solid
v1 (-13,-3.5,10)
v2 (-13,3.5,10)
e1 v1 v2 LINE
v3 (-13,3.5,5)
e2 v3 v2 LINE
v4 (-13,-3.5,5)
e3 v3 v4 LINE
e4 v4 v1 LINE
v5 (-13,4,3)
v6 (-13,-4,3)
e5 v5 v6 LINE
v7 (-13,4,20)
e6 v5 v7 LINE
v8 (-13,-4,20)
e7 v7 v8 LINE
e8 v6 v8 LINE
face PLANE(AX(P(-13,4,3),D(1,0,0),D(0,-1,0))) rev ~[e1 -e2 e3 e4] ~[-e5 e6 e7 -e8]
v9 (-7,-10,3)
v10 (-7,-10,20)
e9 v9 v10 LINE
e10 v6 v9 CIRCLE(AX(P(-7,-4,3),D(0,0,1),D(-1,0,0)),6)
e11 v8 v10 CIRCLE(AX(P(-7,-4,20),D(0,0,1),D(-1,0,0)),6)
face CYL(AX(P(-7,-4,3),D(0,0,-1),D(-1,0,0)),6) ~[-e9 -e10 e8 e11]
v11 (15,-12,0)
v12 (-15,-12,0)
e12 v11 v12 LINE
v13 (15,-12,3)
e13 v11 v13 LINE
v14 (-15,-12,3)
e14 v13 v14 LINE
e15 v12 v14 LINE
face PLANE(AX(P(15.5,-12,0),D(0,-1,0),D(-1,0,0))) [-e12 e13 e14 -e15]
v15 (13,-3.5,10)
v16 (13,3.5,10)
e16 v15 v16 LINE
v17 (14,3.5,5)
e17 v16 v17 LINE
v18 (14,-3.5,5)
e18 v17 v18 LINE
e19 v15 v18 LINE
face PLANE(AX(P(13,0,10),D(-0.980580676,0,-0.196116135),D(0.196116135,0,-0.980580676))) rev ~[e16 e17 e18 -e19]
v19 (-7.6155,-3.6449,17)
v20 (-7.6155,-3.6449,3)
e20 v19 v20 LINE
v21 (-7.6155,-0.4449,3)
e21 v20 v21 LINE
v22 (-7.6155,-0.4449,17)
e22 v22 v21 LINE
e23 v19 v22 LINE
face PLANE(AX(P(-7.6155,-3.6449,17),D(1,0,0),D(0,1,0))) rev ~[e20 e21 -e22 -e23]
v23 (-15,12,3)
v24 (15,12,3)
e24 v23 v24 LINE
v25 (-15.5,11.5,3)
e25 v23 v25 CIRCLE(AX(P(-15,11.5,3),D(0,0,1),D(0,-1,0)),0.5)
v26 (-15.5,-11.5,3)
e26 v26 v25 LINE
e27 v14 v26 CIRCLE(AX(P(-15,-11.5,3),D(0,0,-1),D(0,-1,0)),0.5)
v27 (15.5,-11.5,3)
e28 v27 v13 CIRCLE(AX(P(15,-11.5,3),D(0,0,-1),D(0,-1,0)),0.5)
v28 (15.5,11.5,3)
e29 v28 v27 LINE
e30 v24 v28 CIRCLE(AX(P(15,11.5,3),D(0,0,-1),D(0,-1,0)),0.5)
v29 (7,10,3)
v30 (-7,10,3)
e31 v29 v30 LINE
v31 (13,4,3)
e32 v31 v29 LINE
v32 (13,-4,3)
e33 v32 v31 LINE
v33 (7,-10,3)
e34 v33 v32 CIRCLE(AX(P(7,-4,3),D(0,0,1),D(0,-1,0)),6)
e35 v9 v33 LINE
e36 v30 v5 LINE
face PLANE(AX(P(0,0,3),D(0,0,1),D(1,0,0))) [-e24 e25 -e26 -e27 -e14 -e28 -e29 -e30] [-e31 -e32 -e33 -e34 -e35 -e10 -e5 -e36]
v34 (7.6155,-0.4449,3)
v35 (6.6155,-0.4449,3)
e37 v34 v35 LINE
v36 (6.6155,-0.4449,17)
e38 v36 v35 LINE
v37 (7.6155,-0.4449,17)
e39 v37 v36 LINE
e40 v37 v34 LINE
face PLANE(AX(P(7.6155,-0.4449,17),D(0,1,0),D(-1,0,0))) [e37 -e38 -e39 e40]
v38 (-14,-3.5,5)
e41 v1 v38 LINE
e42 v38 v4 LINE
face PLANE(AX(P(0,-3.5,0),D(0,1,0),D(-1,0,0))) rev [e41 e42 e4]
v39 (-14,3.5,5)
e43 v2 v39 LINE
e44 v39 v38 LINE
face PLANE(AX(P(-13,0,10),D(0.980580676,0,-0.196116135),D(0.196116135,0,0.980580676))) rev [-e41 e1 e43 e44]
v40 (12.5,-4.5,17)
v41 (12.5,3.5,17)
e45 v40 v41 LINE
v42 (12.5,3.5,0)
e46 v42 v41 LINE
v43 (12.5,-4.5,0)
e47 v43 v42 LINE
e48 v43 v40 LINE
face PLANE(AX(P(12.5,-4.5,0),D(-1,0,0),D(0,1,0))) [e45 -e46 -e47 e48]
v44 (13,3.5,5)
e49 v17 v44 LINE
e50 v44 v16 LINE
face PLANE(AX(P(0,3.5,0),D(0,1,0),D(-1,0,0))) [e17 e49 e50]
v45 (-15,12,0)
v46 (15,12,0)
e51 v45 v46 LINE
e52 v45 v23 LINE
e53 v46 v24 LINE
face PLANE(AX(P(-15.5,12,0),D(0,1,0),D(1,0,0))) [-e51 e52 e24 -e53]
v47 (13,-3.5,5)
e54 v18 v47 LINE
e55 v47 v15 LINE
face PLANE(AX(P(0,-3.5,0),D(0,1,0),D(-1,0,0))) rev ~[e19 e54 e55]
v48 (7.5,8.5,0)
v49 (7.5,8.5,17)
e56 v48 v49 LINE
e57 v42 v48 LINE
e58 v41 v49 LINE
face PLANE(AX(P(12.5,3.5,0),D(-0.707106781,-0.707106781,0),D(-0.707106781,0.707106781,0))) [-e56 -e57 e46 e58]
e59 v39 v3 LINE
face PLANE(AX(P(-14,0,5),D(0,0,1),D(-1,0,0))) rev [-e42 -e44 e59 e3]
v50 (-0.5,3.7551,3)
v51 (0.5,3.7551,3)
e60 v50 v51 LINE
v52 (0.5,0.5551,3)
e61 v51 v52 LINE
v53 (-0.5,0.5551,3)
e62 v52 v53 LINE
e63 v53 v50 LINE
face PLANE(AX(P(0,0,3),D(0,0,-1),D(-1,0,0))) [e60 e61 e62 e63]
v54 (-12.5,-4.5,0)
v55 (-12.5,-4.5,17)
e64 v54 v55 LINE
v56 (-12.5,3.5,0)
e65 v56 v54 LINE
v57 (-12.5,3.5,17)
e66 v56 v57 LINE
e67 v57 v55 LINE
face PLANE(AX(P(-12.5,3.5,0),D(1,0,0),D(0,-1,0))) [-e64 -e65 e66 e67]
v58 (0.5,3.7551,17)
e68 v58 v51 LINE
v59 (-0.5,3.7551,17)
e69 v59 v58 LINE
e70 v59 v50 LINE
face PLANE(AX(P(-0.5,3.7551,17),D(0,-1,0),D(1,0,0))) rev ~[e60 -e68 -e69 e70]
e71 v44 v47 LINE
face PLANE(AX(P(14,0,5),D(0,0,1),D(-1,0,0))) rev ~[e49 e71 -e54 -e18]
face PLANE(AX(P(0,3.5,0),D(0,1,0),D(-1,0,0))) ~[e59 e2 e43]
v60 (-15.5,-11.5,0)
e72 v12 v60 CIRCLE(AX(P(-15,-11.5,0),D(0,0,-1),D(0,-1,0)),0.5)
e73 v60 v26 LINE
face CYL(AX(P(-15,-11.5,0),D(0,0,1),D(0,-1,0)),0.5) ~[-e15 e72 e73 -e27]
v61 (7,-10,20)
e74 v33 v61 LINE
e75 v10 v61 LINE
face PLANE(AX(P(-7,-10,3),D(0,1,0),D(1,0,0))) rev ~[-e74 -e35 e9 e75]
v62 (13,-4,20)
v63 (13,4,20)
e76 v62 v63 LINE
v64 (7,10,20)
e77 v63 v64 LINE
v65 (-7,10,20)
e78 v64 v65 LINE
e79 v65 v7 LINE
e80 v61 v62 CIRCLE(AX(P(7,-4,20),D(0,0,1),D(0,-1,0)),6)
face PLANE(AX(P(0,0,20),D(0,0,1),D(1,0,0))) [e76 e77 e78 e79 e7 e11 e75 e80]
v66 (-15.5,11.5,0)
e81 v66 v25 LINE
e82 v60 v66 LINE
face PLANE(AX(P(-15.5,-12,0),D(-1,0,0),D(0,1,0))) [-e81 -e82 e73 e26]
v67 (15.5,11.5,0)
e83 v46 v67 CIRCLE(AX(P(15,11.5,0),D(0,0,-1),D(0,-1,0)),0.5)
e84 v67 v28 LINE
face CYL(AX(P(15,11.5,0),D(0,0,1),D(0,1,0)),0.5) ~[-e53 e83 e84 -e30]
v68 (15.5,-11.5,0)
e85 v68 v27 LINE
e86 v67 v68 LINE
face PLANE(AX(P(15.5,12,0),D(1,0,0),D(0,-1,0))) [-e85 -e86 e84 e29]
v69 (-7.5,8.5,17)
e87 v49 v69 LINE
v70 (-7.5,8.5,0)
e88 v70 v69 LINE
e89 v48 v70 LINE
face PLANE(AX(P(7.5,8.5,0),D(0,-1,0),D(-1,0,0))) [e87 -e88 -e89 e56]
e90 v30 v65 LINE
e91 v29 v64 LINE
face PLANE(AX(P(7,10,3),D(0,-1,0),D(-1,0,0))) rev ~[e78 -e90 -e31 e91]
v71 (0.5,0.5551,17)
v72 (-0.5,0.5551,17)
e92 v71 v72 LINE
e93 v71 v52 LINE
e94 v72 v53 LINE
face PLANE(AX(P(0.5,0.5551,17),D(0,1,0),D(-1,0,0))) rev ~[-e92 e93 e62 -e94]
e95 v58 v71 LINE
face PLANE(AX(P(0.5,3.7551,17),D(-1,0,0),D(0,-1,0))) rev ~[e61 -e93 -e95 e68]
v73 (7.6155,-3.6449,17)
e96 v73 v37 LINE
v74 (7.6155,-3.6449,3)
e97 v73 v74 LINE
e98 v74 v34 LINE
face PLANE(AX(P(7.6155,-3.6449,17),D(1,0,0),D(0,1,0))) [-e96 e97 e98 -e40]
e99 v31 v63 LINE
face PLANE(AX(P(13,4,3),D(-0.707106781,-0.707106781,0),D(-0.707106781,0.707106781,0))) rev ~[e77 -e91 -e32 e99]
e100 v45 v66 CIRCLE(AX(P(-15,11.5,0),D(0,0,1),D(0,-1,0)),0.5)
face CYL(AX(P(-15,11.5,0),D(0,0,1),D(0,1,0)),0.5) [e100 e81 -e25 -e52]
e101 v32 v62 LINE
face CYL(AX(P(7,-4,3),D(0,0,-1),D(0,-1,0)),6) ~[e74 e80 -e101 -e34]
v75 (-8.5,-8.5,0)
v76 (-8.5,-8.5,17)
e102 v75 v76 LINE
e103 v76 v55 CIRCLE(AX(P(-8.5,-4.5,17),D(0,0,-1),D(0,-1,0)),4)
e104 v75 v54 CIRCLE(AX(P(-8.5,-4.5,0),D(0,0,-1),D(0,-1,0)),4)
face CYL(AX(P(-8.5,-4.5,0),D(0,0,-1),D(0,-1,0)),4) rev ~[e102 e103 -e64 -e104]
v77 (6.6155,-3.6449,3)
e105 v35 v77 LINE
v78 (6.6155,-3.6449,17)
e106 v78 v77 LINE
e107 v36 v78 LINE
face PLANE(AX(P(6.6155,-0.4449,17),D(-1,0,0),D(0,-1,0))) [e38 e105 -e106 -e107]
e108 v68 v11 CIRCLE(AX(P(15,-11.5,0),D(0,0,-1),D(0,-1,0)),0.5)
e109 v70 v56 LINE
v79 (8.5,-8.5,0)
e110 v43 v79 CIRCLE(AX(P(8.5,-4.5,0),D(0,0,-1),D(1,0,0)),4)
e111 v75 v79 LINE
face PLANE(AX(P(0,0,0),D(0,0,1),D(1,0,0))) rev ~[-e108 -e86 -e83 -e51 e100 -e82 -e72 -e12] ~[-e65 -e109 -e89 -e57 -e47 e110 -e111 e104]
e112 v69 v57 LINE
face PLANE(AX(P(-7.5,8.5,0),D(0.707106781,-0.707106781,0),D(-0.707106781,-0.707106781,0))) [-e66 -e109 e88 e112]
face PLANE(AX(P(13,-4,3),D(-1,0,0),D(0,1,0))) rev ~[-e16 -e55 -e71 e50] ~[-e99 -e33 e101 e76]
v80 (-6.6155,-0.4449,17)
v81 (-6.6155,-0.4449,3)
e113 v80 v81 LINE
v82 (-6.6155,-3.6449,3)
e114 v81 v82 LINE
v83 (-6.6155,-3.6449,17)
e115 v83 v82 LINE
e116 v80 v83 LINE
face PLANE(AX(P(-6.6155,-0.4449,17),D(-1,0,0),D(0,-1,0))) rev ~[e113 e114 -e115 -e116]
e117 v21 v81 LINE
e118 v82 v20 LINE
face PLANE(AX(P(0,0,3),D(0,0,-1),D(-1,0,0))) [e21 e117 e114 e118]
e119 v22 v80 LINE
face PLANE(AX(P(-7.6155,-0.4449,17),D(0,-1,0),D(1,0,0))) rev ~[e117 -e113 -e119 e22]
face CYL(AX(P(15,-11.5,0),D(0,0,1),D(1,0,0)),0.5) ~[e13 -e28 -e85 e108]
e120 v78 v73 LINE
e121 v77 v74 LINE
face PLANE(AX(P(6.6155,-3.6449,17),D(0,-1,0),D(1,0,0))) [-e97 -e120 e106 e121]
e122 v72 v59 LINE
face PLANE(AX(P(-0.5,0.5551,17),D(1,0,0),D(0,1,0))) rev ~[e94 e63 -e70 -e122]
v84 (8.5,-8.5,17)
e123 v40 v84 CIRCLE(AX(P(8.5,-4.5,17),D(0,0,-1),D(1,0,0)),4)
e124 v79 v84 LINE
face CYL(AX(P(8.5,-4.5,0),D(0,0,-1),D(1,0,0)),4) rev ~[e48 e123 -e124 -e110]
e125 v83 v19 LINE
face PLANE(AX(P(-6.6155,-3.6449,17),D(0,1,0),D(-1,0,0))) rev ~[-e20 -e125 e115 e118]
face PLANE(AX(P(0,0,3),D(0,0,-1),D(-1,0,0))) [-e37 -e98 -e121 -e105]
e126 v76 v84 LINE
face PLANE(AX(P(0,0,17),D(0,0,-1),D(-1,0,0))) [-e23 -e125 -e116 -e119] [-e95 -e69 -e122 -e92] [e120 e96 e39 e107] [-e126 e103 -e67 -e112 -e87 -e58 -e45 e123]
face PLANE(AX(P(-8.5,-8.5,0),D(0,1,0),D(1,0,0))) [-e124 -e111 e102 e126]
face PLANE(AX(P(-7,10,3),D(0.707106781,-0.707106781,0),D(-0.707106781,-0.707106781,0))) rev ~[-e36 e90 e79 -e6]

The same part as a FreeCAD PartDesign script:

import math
import FreeCAD as App
import Part
import Sketcher
Q = App.Units.Quantity


def edges_at(feature, points):
    """Names of the edges that pass closest to the given points."""
    edges = feature.Shape.Edges
    near = lambda p: min(range(len(edges)), key=lambda i: edges[i].distToShape(Part.Vertex(*p))[0])
    return sorted({f"Edge{near(p) + 1}" for p in points})


def add_polygon(sketch, points):
    """Adds a closed chain of lines whose ends are joined by coincident constraints."""
    first, n = sketch.GeometryCount, len(points)
    for a, b in zip(points, points[1:] + points[:1]):
        sketch.addGeometry(Part.LineSegment(App.Vector(*a, 0), App.Vector(*b, 0)), False)
    for i in range(n):
        sketch.addConstraint(Sketcher.Constraint("Coincident", first + i, 2, first + (i + 1) % n, 1))

doc = App.newDocument("Part")
body = doc.addObject("PartDesign::Body", "Body")

# Sketch on XY plane
sketch1 = body.newObject("Sketcher::SketchObject", "Sketch")
sketch1.AttachmentSupport = (doc.getObject("XY_Plane"), [""])
sketch1.MapMode = "FlatFace"
add_polygon(sketch1, [(16, 12), (-16, 12), (-16, -12), (16, -12)])  # lines 0-3
sketch1.addConstraint(Sketcher.Constraint("Horizontal", 0))
sketch1.addConstraint(Sketcher.Constraint("Vertical", 1))
sketch1.addConstraint(Sketcher.Constraint("Horizontal", 2))
sketch1.addConstraint(Sketcher.Constraint("Vertical", 3))
sketch1.addConstraint(Sketcher.Constraint("Symmetric", 0, 2, 2, 2, -1, 1))
sketch1.addConstraint(Sketcher.Constraint("DistanceX", 0, 2, 0, 1, Q("31 mm")))
sketch1.addConstraint(Sketcher.Constraint("DistanceY", 1, 2, 1, 1, Q("24 mm")))
pad1 = body.newObject("PartDesign::Pad", "Pad")
pad1.Profile = sketch1
pad1.Length = 3
doc.recompute()

fillet = body.newObject("PartDesign::Fillet", "Fillet")
fillet.Base = (pad1, edges_at(pad1, [
    (15.5, 12, 1.5),
    (15.5, -12, 1.5),
    (-15.5, -12, 1.5),
    (-15.5, 12, 1.5),
]))
fillet.Radius = 0.5

# Sketch on XY plane
sketch2 = body.newObject("Sketcher::SketchObject", "Sketch001")
sketch2.AttachmentSupport = (doc.getObject("XY_Plane"), [""])
sketch2.MapMode = "FlatFace"
sketch2.AttachmentOffset = App.Placement(App.Vector(0, 0, 3), App.Rotation())
sketch2.addGeometry(Part.ArcOfCircle(Part.Circle(App.Vector(-7, -4, 0), App.Vector(0, 0, 1), 6), math.radians(180), math.radians(270)), False)
sketch2.addGeometry(Part.LineSegment(App.Vector(-7, -10, 0), App.Vector(7, -10, 0)), False)
sketch2.addGeometry(Part.ArcOfCircle(Part.Circle(App.Vector(7, -4, 0), App.Vector(0, 0, 1), 6), math.radians(-90), math.radians(0)), False)
sketch2.addGeometry(Part.LineSegment(App.Vector(13, -4, 0), App.Vector(13, 4, 0)), False)
sketch2.addGeometry(Part.LineSegment(App.Vector(13, 4, 0), App.Vector(7, 10, 0)), False)
sketch2.addGeometry(Part.LineSegment(App.Vector(7, 10, 0), App.Vector(-7, 10, 0)), False)
sketch2.addGeometry(Part.LineSegment(App.Vector(-7, 10, 0), App.Vector(-13, 4, 0)), False)
sketch2.addGeometry(Part.LineSegment(App.Vector(-13, 4, 0), App.Vector(-13, -4, 0)), False)
sketch2.addConstraint(Sketcher.Constraint("Tangent", 0, 2, 1, 1))
sketch2.addConstraint(Sketcher.Constraint("Tangent", 1, 2, 2, 1))
sketch2.addConstraint(Sketcher.Constraint("Tangent", 2, 2, 3, 1))
sketch2.addConstraint(Sketcher.Constraint("Coincident", 3, 2, 4, 1))
sketch2.addConstraint(Sketcher.Constraint("Coincident", 4, 2, 5, 1))
sketch2.addConstraint(Sketcher.Constraint("Coincident", 5, 2, 6, 1))
sketch2.addConstraint(Sketcher.Constraint("Coincident", 6, 2, 7, 1))
sketch2.addConstraint(Sketcher.Constraint("Tangent", 7, 2, 0, 1))
sketch2.addConstraint(Sketcher.Constraint("Horizontal", 1))
sketch2.addConstraint(Sketcher.Constraint("Vertical", 3))
sketch2.addConstraint(Sketcher.Constraint("Horizontal", 5))
sketch2.addConstraint(Sketcher.Constraint("Vertical", 7))
sketch2.addConstraint(Sketcher.Constraint("Equal", 0, 2))
sketch2.addConstraint(Sketcher.Constraint("Symmetric", 0, 2, 4, 2, -1, 1))
sketch2.addConstraint(Sketcher.Constraint("Symmetric", 2, 2, 6, 2, -1, 1))
sketch2.addConstraint(Sketcher.Constraint("Perpendicular", 4, 6))
sketch2.addConstraint(Sketcher.Constraint("Horizontal", 3, 2, 6, 2))
sketch2.addConstraint(Sketcher.Constraint("Radius", 0, Q("6 mm")))
sketch2.addConstraint(Sketcher.Constraint("DistanceX", 0, 3, 2, 2, Q("20 mm")))
sketch2.addConstraint(Sketcher.Constraint("DistanceY", 1, 2, 4, 2, Q("20 mm")))
pad2 = body.newObject("PartDesign::Pad", "Pad001")
pad2.Profile = sketch2
pad2.Length = 17

# Sketch on XZ plane
sketch3 = body.newObject("Sketcher::SketchObject", "Sketch002")
sketch3.AttachmentSupport = (doc.getObject("XZ_Plane"), [""])
sketch3.MapMode = "FlatFace"
add_polygon(sketch3, [(13, 5), (13, 10), (14, 5)])  # lines 0-2
sketch3.addConstraint(Sketcher.Constraint("Vertical", 0))
sketch3.addConstraint(Sketcher.Constraint("Horizontal", 2))
sketch3.addConstraint(Sketcher.Constraint("DistanceX", 2, 2, 2, 1, Q("1 mm")))
sketch3.addConstraint(Sketcher.Constraint("DistanceY", 0, 1, 0, 2, Q("5 mm")))
sketch3.addConstraint(Sketcher.Constraint("DistanceY", -1, 1, 1, 2, Q("5 mm")))
sketch3.addConstraint(Sketcher.Constraint("DistanceX", -1, 1, 0, 2, Q("13 mm")))
pad3 = body.newObject("PartDesign::Pad", "Pad002")
pad3.Profile = sketch3
pad3.Length = 7
pad3.Midplane = True
doc.recompute()

mirrored = body.newObject("PartDesign::Mirrored", "Mirrored")
mirrored.Originals = [pad3]
mirrored.MirrorPlane = (doc.getObject("YZ_Plane"), [""])
body.Tip = mirrored

# Sketch on XY plane
sketch4 = body.newObject("Sketcher::SketchObject", "Sketch003")
sketch4.AttachmentSupport = (doc.getObject("XY_Plane"), [""])
sketch4.MapMode = "FlatFace"
sketch4.addGeometry(Part.LineSegment(App.Vector(-7.5, 8.5, 0), App.Vector(7.5, 8.5, 0)), False)
sketch4.addGeometry(Part.LineSegment(App.Vector(7.5, 8.5, 0), App.Vector(12.5, 3.5, 0)), False)
sketch4.addGeometry(Part.LineSegment(App.Vector(12.5, 3.5, 0), App.Vector(12.5, -4.5, 0)), False)
sketch4.addGeometry(Part.ArcOfCircle(Part.Circle(App.Vector(8.5, -4.5, 0), App.Vector(0, 0, 1), 4), math.radians(-90), math.radians(0)), False)
sketch4.addGeometry(Part.LineSegment(App.Vector(8.5, -8.5, 0), App.Vector(-8.5, -8.5, 0)), False)
sketch4.addGeometry(Part.ArcOfCircle(Part.Circle(App.Vector(-8.5, -4.5, 0), App.Vector(0, 0, 1), 4), math.radians(180), math.radians(270)), False)
sketch4.addGeometry(Part.LineSegment(App.Vector(-12.5, -4.5, 0), App.Vector(-12.5, 3.5, 0)), False)
sketch4.addGeometry(Part.LineSegment(App.Vector(-12.5, 3.5, 0), App.Vector(-7.5, 8.5, 0)), False)
sketch4.addConstraint(Sketcher.Constraint("Coincident", 0, 2, 1, 1))
sketch4.addConstraint(Sketcher.Constraint("Coincident", 1, 2, 2, 1))
sketch4.addConstraint(Sketcher.Constraint("Tangent", 2, 2, 3, 2))
sketch4.addConstraint(Sketcher.Constraint("Tangent", 3, 1, 4, 1))
sketch4.addConstraint(Sketcher.Constraint("Tangent", 4, 2, 5, 2))
sketch4.addConstraint(Sketcher.Constraint("Tangent", 5, 1, 6, 1))
sketch4.addConstraint(Sketcher.Constraint("Coincident", 6, 2, 7, 1))
sketch4.addConstraint(Sketcher.Constraint("Coincident", 7, 2, 0, 1))
sketch4.addConstraint(Sketcher.Constraint("Horizontal", 0))
sketch4.addConstraint(Sketcher.Constraint("Vertical", 2))
sketch4.addConstraint(Sketcher.Constraint("Horizontal", 4))
sketch4.addConstraint(Sketcher.Constraint("Vertical", 6))
sketch4.addConstraint(Sketcher.Constraint("Equal", 3, 5))
sketch4.addConstraint(Sketcher.Constraint("Symmetric", 1, 2, 6, 2, -2))
sketch4.addConstraint(Sketcher.Constraint("Perpendicular", 1, 7))
sketch4.addConstraint(Sketcher.Constraint("Equal", 1, 7))
sketch4.addConstraint(Sketcher.Constraint("Radius", 3, Q("4 mm")))
sketch4.addConstraint(Sketcher.Constraint("DistanceX", 4, 2, 4, 1, Q("17 mm")))
sketch4.addConstraint(Sketcher.Constraint("DistanceX", 0, 2, 1, 2, Q("5 mm")))
sketch4.addConstraint(Sketcher.Constraint("DistanceY", 3, 1, 0, 2, Q("17 mm")))
sketch4.addConstraint(Sketcher.Constraint("DistanceY", 3, 3, -1, 1, Q("4.5 mm")))
pocket1 = body.newObject("PartDesign::Pocket", "Pocket")
pocket1.Profile = sketch4
pocket1.Length = 17
pocket1.Reversed = True

# Sketch on XY plane
sketch5 = body.newObject("Sketcher::SketchObject", "Sketch004")
sketch5.AttachmentSupport = (doc.getObject("XY_Plane"), [""])
sketch5.MapMode = "FlatFace"
sketch5.AttachmentOffset = App.Placement(App.Vector(0, 0, 17), App.Rotation())
add_polygon(sketch5, [(-0.5, 0.6), (-0.5, 3.8), (0.5, 3.8), (0.5, 0.6)])  # lines 0-3
add_polygon(sketch5, [(-7.6, -3.6), (-7.6, -0.4), (-6.6, -0.4), (-6.6, -3.6)])  # lines 4-7
add_polygon(sketch5, [(6.6, -0.4), (7.6, -0.4), (7.6, -3.6), (6.6, -3.6)])  # lines 8-11
sketch5.addConstraint(Sketcher.Constraint("Vertical", 0))
sketch5.addConstraint(Sketcher.Constraint("Horizontal", 1))
sketch5.addConstraint(Sketcher.Constraint("Vertical", 2))
sketch5.addConstraint(Sketcher.Constraint("Horizontal", 3))
sketch5.addConstraint(Sketcher.Constraint("Vertical", 4))
sketch5.addConstraint(Sketcher.Constraint("Horizontal", 5))
sketch5.addConstraint(Sketcher.Constraint("Vertical", 6))
sketch5.addConstraint(Sketcher.Constraint("Horizontal", 7))
sketch5.addConstraint(Sketcher.Constraint("Horizontal", 8))
sketch5.addConstraint(Sketcher.Constraint("Vertical", 9))
sketch5.addConstraint(Sketcher.Constraint("Horizontal", 10))
sketch5.addConstraint(Sketcher.Constraint("Vertical", 11))
sketch5.addConstraint(Sketcher.Constraint("Symmetric", 4, 2, 8, 2, -2))
sketch5.addConstraint(Sketcher.Constraint("Symmetric", 6, 2, 10, 2, -2))
sketch5.addConstraint(Sketcher.Constraint("Equal", 3, 5))
sketch5.addConstraint(Sketcher.Constraint("Equal", 2, 4))
sketch5.addConstraint(Sketcher.Constraint("DistanceX", 1, 1, 1, 2, Q("1 mm")))
sketch5.addConstraint(Sketcher.Constraint("DistanceY", 0, 1, 0, 2, Q("3.2 mm")))
sketch5.addConstraint(Sketcher.Constraint("DistanceY", 4, 2, 3, 2, Q("1 mm")))
sketch5.addConstraint(Sketcher.Constraint("DistanceX", 0, 2, -1, 1, Q("0.5 mm")))
sketch5.addConstraint(Sketcher.Constraint("DistanceY", -1, 1, 0, 2, Q("3.755 mm")))
sketch5.addConstraint(Sketcher.Constraint("DistanceX", 5, 2, 8, 2, Q("14.231 mm")))
pad4 = body.newObject("PartDesign::Pad", "Pad003")
pad4.Profile = sketch5
pad4.Length = 14
pad4.Reversed = True

doc.recompute()
